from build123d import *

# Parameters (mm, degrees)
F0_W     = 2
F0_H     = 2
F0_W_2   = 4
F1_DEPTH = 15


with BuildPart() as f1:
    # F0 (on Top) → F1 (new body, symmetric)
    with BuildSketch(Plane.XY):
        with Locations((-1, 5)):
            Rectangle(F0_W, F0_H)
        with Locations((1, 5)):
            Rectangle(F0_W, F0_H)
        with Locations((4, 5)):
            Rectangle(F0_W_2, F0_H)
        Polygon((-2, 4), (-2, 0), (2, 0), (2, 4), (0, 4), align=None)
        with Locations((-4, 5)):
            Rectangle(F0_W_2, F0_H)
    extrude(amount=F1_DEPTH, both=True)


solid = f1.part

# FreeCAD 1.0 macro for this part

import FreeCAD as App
import Part
import Sketcher
from FreeCAD import Vector

doc = App.newDocument("Part")
body = doc.addObject("PartDesign::Body", "Body")

# Sketch on XY plane
sketch1 = body.newObject("Sketcher::SketchObject", "Sketch")
sketch1.AttachmentSupport = (doc.getObject("XY_Plane"), [""])
sketch1.MapMode = "FlatFace"
sketch1.addGeometry([
    Part.LineSegment(Vector(-2, 4, 0), Vector(-2, 0, 0)),  # 0
    Part.LineSegment(Vector(-2, 0, 0), Vector(2, 0, 0)),  # 1
    Part.LineSegment(Vector(2, 0, 0), Vector(2, 4, 0)),  # 2
    Part.LineSegment(Vector(2, 4, 0), Vector(6, 4, 0)),  # 3
    Part.LineSegment(Vector(6, 4, 0), Vector(6, 6, 0)),  # 4
    Part.LineSegment(Vector(6, 6, 0), Vector(-6, 6, 0)),  # 5
    Part.LineSegment(Vector(-6, 6, 0), Vector(-6, 4, 0)),  # 6
    Part.LineSegment(Vector(-6, 4, 0), Vector(-2, 4, 0)),  # 7
], False)
sketch1.addConstraint([
    Sketcher.Constraint("Coincident", 0, 2, 1, 1),
    Sketcher.Constraint("Coincident", 1, 2, 2, 1),
    Sketcher.Constraint("Coincident", 2, 2, 3, 1),
    Sketcher.Constraint("Coincident", 3, 2, 4, 1),
    Sketcher.Constraint("Coincident", 4, 2, 5, 1),
    Sketcher.Constraint("Coincident", 5, 2, 6, 1),
    Sketcher.Constraint("Coincident", 6, 2, 7, 1),
    Sketcher.Constraint("Coincident", 7, 2, 0, 1),
    Sketcher.Constraint("Vertical", 0),
    Sketcher.Constraint("Horizontal", 1),
    Sketcher.Constraint("Vertical", 2),
    Sketcher.Constraint("Horizontal", 3),
    Sketcher.Constraint("Vertical", 4),
    Sketcher.Constraint("Horizontal", 5),
    Sketcher.Constraint("Vertical", 6),
    Sketcher.Constraint("Horizontal", 7),
    Sketcher.Constraint("Symmetric", 0, 2, 1, 2, -1, 1),
    Sketcher.Constraint("Symmetric", 3, 2, 6, 2, -2),
    Sketcher.Constraint("Equal", 1, 3),
    Sketcher.Constraint("Equal", 7, 0),
    Sketcher.Constraint("DistanceX", 1, 1, 1, 2, 4.0),
    Sketcher.Constraint("DistanceY", 4, 1, 4, 2, 2.0),
])
pad1 = body.newObject("PartDesign::Pad", "Pad")
pad1.Profile = sketch1
pad1.Length = 30
pad1.Midplane = True

doc.recompute()
